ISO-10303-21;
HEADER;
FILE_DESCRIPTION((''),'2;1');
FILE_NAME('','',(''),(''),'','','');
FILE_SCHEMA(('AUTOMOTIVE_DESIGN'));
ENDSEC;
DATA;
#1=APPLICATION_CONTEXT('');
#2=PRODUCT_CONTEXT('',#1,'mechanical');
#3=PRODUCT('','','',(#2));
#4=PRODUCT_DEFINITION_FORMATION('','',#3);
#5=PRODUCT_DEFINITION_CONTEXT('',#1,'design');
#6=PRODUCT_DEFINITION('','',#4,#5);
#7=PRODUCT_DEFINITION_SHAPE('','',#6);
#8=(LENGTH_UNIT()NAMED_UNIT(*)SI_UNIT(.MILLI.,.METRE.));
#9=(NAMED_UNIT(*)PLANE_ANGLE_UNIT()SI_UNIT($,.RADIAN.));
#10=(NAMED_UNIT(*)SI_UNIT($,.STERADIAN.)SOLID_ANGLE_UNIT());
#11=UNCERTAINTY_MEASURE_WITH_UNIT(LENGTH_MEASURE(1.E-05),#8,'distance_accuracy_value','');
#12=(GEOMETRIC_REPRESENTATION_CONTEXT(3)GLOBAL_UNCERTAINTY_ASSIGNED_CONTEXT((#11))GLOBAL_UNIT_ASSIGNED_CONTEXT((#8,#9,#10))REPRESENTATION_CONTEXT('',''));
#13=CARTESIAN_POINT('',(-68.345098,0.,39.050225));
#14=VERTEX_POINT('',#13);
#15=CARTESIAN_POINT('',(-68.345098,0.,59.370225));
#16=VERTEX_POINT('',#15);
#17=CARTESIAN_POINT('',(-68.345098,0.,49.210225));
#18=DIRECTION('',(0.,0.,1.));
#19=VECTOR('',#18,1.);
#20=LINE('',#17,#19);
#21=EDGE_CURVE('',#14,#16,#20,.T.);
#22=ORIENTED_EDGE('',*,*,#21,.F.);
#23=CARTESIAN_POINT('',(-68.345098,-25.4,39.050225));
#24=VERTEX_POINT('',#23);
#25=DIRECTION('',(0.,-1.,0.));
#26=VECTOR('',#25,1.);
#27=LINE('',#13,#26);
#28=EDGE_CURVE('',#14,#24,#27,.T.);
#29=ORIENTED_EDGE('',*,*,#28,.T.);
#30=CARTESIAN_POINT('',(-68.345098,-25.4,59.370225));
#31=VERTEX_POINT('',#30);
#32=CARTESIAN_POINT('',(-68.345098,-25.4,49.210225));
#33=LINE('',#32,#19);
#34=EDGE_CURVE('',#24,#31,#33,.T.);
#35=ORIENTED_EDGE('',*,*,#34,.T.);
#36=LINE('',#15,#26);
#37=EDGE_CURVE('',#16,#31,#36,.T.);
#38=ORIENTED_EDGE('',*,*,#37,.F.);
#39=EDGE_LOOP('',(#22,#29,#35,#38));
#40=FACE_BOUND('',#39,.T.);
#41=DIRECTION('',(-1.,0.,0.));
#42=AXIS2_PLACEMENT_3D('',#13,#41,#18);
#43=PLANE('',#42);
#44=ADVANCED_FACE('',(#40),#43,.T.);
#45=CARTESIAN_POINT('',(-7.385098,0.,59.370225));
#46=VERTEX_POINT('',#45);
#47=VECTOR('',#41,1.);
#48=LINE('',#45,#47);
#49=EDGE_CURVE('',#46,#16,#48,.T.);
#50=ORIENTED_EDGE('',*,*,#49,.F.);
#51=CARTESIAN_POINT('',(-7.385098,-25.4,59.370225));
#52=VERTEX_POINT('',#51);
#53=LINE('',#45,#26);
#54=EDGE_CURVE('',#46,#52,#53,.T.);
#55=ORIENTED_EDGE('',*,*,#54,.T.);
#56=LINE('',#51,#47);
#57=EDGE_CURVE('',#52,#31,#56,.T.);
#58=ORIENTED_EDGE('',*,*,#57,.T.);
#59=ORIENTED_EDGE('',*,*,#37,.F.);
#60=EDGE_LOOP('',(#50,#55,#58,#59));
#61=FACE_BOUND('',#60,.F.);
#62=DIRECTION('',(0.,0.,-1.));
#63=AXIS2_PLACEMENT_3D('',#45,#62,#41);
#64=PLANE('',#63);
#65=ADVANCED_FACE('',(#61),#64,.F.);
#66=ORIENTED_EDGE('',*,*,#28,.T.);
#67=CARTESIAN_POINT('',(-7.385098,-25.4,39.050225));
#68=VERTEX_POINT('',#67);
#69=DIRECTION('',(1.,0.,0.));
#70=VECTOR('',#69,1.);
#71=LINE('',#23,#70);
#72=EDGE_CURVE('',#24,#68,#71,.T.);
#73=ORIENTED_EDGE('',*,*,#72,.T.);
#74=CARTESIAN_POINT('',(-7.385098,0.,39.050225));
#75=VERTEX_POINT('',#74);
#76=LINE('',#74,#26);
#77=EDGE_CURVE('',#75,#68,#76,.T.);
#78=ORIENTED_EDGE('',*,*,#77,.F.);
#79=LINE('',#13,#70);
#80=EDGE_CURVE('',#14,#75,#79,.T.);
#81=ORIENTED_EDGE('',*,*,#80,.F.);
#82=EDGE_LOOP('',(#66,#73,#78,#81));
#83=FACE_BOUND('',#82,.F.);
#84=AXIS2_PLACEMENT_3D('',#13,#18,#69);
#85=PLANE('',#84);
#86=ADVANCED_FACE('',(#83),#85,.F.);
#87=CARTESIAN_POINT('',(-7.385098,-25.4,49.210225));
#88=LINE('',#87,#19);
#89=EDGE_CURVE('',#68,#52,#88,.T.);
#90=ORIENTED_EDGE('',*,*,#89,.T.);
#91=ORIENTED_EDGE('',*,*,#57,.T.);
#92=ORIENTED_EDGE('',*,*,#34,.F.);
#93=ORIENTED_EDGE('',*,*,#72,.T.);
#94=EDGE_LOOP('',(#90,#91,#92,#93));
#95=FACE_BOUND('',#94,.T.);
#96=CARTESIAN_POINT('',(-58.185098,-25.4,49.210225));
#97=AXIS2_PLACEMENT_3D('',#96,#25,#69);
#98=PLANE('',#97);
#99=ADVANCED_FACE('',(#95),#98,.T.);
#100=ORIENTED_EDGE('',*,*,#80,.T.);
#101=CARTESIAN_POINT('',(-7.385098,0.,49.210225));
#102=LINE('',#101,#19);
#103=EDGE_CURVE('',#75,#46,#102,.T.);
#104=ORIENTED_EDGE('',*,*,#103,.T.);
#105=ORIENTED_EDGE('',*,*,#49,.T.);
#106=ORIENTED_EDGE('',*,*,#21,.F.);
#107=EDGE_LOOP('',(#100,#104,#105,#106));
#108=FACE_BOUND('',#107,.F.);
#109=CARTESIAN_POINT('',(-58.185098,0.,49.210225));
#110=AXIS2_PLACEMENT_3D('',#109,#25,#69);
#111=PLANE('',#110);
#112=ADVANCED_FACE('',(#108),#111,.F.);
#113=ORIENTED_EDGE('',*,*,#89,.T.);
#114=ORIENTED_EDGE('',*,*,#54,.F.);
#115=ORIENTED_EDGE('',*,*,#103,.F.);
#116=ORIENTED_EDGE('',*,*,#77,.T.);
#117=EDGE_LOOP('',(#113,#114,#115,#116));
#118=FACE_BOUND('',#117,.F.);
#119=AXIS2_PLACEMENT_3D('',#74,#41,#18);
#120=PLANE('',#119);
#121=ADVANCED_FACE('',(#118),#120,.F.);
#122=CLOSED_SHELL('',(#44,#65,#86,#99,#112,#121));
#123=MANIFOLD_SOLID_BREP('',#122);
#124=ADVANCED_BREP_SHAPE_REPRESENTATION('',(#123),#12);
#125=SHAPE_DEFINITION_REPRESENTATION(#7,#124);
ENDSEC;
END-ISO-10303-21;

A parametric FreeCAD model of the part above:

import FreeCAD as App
import Part
import Sketcher

V = App.Vector
Q = App.Units.Quantity


def add_polygon(sketch, points):
    """Adds a closed chain of lines whose ends are joined by coincident constraints."""
    first, n = sketch.GeometryCount, len(points)
    for a, b in zip(points, points[1:] + points[:1]):
        sketch.addGeometry(Part.LineSegment(App.Vector(*a, 0), App.Vector(*b, 0)), False)
    for i in range(n):
        sketch.addConstraint(Sketcher.Constraint("Coincident", first + i, 2, first + (i + 1) % n, 1))

doc = App.newDocument("Part")
body = doc.addObject("PartDesign::Body", "Body")

sketch1 = body.newObject("Sketcher::SketchObject", "Sketch")
sketch1.AttachmentSupport = (doc.getObject("XZ_Plane"), [""])
sketch1.MapMode = "FlatFace"
add_polygon(sketch1, [(-60.96, 58.11), (-60.96, 17.47), (-20.32, 17.47), (-20.32, 17.66), (0, 17.66), (0, 58.11)])
sketch1.addConstraint(Sketcher.Constraint("Vertical", 0))
sketch1.addConstraint(Sketcher.Constraint("Horizontal", 1))
sketch1.addConstraint(Sketcher.Constraint("Vertical", 2))
sketch1.addConstraint(Sketcher.Constraint("Horizontal", 3))
sketch1.addConstraint(Sketcher.Constraint("Vertical", 4))
sketch1.addConstraint(Sketcher.Constraint("Horizontal", 5))
sketch1.addConstraint(Sketcher.Constraint("PointOnObject", 3, 2, -2))
sketch1.addConstraint(Sketcher.Constraint("Equal", 1, 0))
sketch1.addConstraint(Sketcher.Constraint("DistanceX", 1, 1, 1, 2, Q("1.6 in")))
sketch1.addConstraint(Sketcher.Constraint("DistanceX", 3, 1, 3, 2, Q("0.8 in")))
sketch1.addConstraint(Sketcher.Constraint("DistanceY", 2, 1, 2, 2, Q("0.190955 mm")))
sketch1.addConstraint(Sketcher.Constraint("DistanceY", -1, 1, 0, 2, Q("17.472351 mm")))
pad1 = body.newObject("PartDesign::Pad", "Pad")
pad1.Profile = sketch1
pad1.Length = Q("1 in")
body2 = doc.addObject("PartDesign::Body", "Body001")

sketch2 = body2.newObject("Sketcher::SketchObject", "Sketch001")
sketch2.AttachmentSupport = (doc.getObject("XZ_Plane001"), [""])
sketch2.MapMode = "FlatFace"
add_polygon(sketch2, [(-68, 59), (-68, 39), (-7, 39), (-7, 59)])
sketch2.addConstraint(Sketcher.Constraint("Vertical", 0))
sketch2.addConstraint(Sketcher.Constraint("Horizontal", 1))
sketch2.addConstraint(Sketcher.Constraint("Vertical", 2))
sketch2.addConstraint(Sketcher.Constraint("Horizontal", 3))
sketch2.addConstraint(Sketcher.Constraint("DistanceX", 1, 1, 1, 2, Q("2.4 in")))
sketch2.addConstraint(Sketcher.Constraint("DistanceY", 0, 2, 0, 1, Q("0.8 in")))
sketch2.addConstraint(Sketcher.Constraint("DistanceX", 0, 2, -1, 1, Q("68.345098 mm")))
sketch2.addConstraint(Sketcher.Constraint("DistanceY", -1, 1, 0, 2, Q("39.050225 mm")))
pad2 = body2.newObject("PartDesign::Pad", "Pad001")
pad2.Profile = sketch2
pad2.Length = Q("1 in")

sketch3 = body2.newObject("Sketcher::SketchObject", "Sketch002")
sketch3.AttachmentSupport = (doc.getObject("XZ_Plane001"), [""])
sketch3.MapMode = "FlatFace"
sketch3.addGeometry(Part.Circle(V(-59, 49, 0), V(0, 0, 1), 8), False)
sketch3.addGeometry(Part.Circle(V(-38, 49, 0), V(0, 0, 1), 8), False)
sketch3.addGeometry(Part.Circle(V(-17, 49, 0), V(0, 0, 1), 8), False)
sketch3.addConstraint(Sketcher.Constraint("Equal", 0, 1))
sketch3.addConstraint(Sketcher.Constraint("Equal", 1, 2))
sketch3.addConstraint(Sketcher.Constraint("Horizontal", 0, 3, 1, 3))
sketch3.addConstraint(Sketcher.Constraint("Horizontal", 1, 3, 2, 3))
sketch3.addConstraint(Sketcher.Constraint("Diameter", 0, Q("0.6 in")))
sketch3.addConstraint(Sketcher.Constraint("DistanceX", 1, 3, -1, 1, Q("38.477361 mm")))
sketch3.addConstraint(Sketcher.Constraint("DistanceX", 2, 3, -1, 1, Q("17.472351 mm")))
sketch3.addConstraint(Sketcher.Constraint("DistanceX", 0, 3, -1, 1, Q("58.527604 mm")))
sketch3.addConstraint(Sketcher.Constraint("DistanceY", -1, 1, 0, 3, Q("48.979867 mm")))
pocket1 = body2.newObject("PartDesign::Pocket", "Pocket")
pocket1.Profile = sketch3
pocket1.Length = Q("1 in")

sketch4 = body2.newObject("Sketcher::SketchObject", "Sketch003")
sketch4.AttachmentSupport = (doc.getObject("XZ_Plane001"), [""])
sketch4.MapMode = "FlatFace"
sketch4.addGeometry(Part.Circle(V(-59, 49, 0), V(0, 0, 1), 6), False)
sketch4.addGeometry(Part.Circle(V(-41, 49, 0), V(0, 0, 1), 6), False)
sketch4.addGeometry(Part.Circle(V(-22, 49, 0), V(0, 0, 1), 6), False)
sketch4.addConstraint(Sketcher.Constraint("Equal", 0, 1))
sketch4.addConstraint(Sketcher.Constraint("Equal", 1, 2))
sketch4.addConstraint(Sketcher.Constraint("Horizontal", 0, 3, 1, 3))
sketch4.addConstraint(Sketcher.Constraint("Horizontal", 1, 3, 2, 3))
sketch4.addConstraint(Sketcher.Constraint("Diameter", 0, Q("0.5 in")))
sketch4.addConstraint(Sketcher.Constraint("DistanceX", 0, 3, 1, 3, Q("17.949741 mm")))
sketch4.addConstraint(Sketcher.Constraint("DistanceX", 1, 3, 2, 3, Q("18.14069 mm")))
sketch4.addConstraint(Sketcher.Constraint("DistanceX", 0, 3, -1, 1, Q("58.527604 mm")))
sketch4.addConstraint(Sketcher.Constraint("DistanceY", -1, 1, 0, 3, Q("49.361777 mm")))
pocket2 = body2.newObject("PartDesign::Pocket", "Pocket001")
pocket2.Profile = sketch4
pocket2.Length = Q("1 in")

sketch5 = body2.newObject("Sketcher::SketchObject", "Sketch004")
sketch5.AttachmentSupport = (doc.getObject("XZ_Plane001"), [""])
sketch5.MapMode = "FlatFace"
sketch5.addGeometry(Part.Circle(V(-59, 50, 0), V(0, 0, 1), 6), False)
sketch5.addGeometry(Part.Circle(V(-41, 50, 0), V(0, 0, 1), 6), False)
sketch5.addGeometry(Part.Circle(V(-24, 50, 0), V(0, 0, 1), 6), False)
sketch5.addConstraint(Sketcher.Constraint("Equal", 0, 1))
sketch5.addConstraint(Sketcher.Constraint("Equal", 1, 2))
sketch5.addConstraint(Sketcher.Constraint("Horizontal", 0, 3, 1, 3))
sketch5.addConstraint(Sketcher.Constraint("Horizontal", 1, 3, 2, 3))
sketch5.addConstraint(Sketcher.Constraint("Diameter", 0, Q("0.5 in")))
sketch5.addConstraint(Sketcher.Constraint("DistanceX", 1, 3, -1, 1, Q("41.15073 mm")))
sketch5.addConstraint(Sketcher.Constraint("DistanceX", 0, 3, 2, 3, Q("35.326609 mm")))
sketch5.addConstraint(Sketcher.Constraint("DistanceX", 0, 3, -1, 1, Q("59.100464 mm")))
sketch5.addConstraint(Sketcher.Constraint("DistanceY", -1, 1, 0, 3, Q("49.934644 mm")))
pocket3 = body2.newObject("PartDesign::Pocket", "Pocket002")
pocket3.Profile = sketch5
pocket3.Length = Q("1 in")

sketch6 = body2.newObject("Sketcher::SketchObject", "Sketch005")
sketch6.AttachmentSupport = (doc.getObject("XZ_Plane001"), [""])
sketch6.MapMode = "FlatFace"
sketch6.addGeometry(Part.Circle(V(-59, 49, 0), V(0, 0, 1), 6), False)
sketch6.addGeometry(Part.Circle(V(-42, 49, 0), V(0, 0, 1), 6), False)
sketch6.addGeometry(Part.Circle(V(-22, 49, 0), V(0, 0, 1), 6), False)
sketch6.addConstraint(Sketcher.Constraint("Equal", 0, 1))
sketch6.addConstraint(Sketcher.Constraint("Equal", 1, 2))
sketch6.addConstraint(Sketcher.Constraint("Horizontal", 0, 3, 1, 3))
sketch6.addConstraint(Sketcher.Constraint("Horizontal", 1, 3, 2, 3))
sketch6.addConstraint(Sketcher.Constraint("Diameter", 0, Q("0.5 in")))
sketch6.addConstraint(Sketcher.Constraint("DistanceY", -1, 1, 0, 3, Q("49.170822 mm")))
sketch6.addConstraint(Sketcher.Constraint("DistanceX", 1, 3, -1, 1, Q("41.914549 mm")))
sketch6.addConstraint(Sketcher.Constraint("DistanceX", 0, 3, 1, 3, Q("17.567828 mm")))
sketch6.addConstraint(Sketcher.Constraint("DistanceX", 2, 3, -1, 1, Q("22.055263 mm")))
pocket4 = body2.newObject("PartDesign::Pocket", "Pocket003")
pocket4.Profile = sketch6
pocket4.Length = Q("1 in")
body.Visibility = False

doc.recompute()
